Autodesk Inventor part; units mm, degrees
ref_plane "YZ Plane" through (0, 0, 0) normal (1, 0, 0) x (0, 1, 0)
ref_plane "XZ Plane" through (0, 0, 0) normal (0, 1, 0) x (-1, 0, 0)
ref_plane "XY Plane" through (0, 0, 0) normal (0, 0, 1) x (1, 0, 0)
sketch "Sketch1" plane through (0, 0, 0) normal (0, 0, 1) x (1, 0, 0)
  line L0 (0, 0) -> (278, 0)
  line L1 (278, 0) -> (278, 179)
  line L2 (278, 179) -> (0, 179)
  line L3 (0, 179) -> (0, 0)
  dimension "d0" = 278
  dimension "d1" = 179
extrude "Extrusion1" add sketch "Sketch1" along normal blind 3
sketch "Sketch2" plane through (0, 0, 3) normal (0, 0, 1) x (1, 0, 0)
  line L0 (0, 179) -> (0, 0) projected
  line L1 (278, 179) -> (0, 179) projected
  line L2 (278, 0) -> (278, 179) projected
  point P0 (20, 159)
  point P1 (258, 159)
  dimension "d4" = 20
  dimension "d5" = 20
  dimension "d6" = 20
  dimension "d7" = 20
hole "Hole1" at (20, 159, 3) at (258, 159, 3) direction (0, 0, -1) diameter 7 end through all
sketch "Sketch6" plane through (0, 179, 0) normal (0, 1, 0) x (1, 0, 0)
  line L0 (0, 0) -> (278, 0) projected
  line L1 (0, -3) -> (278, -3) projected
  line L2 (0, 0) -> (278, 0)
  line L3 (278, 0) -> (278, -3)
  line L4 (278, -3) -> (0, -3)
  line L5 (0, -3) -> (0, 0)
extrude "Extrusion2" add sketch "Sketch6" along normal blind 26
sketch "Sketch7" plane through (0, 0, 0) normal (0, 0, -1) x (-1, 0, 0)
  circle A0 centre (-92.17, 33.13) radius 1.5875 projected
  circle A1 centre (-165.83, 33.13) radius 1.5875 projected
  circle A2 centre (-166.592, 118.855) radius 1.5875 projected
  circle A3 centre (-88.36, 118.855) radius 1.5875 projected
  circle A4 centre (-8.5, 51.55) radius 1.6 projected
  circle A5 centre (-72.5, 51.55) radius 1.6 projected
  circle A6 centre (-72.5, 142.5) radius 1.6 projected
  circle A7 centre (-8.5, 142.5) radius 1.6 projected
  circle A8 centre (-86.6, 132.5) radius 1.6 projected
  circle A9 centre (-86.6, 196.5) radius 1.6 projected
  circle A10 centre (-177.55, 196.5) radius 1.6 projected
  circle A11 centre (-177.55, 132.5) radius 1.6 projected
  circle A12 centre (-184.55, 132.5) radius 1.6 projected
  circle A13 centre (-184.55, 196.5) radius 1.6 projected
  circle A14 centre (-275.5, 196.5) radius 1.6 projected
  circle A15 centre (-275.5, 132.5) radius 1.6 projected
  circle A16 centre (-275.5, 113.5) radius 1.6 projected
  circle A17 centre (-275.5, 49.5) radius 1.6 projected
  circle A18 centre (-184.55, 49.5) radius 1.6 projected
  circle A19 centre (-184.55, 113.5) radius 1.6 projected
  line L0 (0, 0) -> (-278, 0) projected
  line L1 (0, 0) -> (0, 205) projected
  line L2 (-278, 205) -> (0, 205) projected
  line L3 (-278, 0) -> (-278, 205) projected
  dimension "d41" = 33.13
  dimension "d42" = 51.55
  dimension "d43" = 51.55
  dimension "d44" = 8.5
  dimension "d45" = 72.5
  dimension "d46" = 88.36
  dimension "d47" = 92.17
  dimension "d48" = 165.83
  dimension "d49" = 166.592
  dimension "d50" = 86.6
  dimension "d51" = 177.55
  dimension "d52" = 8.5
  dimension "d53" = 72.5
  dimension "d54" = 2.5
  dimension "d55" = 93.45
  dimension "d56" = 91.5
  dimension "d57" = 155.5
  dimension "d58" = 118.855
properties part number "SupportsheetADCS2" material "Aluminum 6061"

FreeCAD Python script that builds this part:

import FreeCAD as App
import Part
import Sketcher

V = App.Vector
Q = App.Units.Quantity


def add_polygon(sketch, points):
    """Adds a closed chain of lines whose ends are joined by coincident constraints."""
    first, n = sketch.GeometryCount, len(points)
    for a, b in zip(points, points[1:] + points[:1]):
        sketch.addGeometry(Part.LineSegment(App.Vector(*a, 0), App.Vector(*b, 0)), False)
    for i in range(n):
        sketch.addConstraint(Sketcher.Constraint("Coincident", first + i, 2, first + (i + 1) % n, 1))

doc = App.newDocument("Part")
body = doc.addObject("PartDesign::Body", "Body")

# Sketch on XY plane
sketch1 = doc.addObject("Sketcher::SketchObject", "Sketch")
body.addObject(sketch1)
sketch1.AttachmentSupport = (doc.XY_Plane, [""])
sketch1.MapMode = "FlatFace"
add_polygon(sketch1, [(0, 179), (0, 0), (278, 0), (278, 179)])  # lines 0-3
sketch1.addConstraint([
    Sketcher.Constraint("Vertical", 0),
    Sketcher.Constraint("Horizontal", 1),
    Sketcher.Constraint("Vertical", 2),
    Sketcher.Constraint("Horizontal", 3),
    Sketcher.Constraint("Coincident", 0, 2, -1, 1),
    Sketcher.Constraint("DistanceX", 1, 1, 1, 2, Q("278 mm")),
    Sketcher.Constraint("DistanceY", 0, 2, 0, 1, Q("179 mm")),
])
pad1 = doc.addObject("PartDesign::Pad", "Pad")
body.addObject(pad1)
pad1.Profile = sketch1
pad1.Length = 3

# Sketch on XY plane
sketch2 = doc.addObject("Sketcher::SketchObject", "Sketch001")
body.addObject(sketch2)
sketch2.AttachmentSupport = (doc.XY_Plane, [""])
sketch2.MapMode = "FlatFace"
sketch2.AttachmentOffset = App.Placement(V(0, 0, 3), App.Rotation())
sketch2.addGeometry([
    Part.Circle(V(20, 159, 0), V(0, 0, 1), 3.5),
    Part.Circle(V(258, 159, 0), V(0, 0, 1), 3.5),
], False)
sketch2.addConstraint([
    Sketcher.Constraint("Equal", 0, 1),
    Sketcher.Constraint("Horizontal", 0, 3, 1, 3),
    Sketcher.Constraint("Diameter", 0, Q("7 mm")),
    Sketcher.Constraint("DistanceX", -1, 1, 0, 3, Q("20 mm")),
    Sketcher.Constraint("DistanceY", -1, 1, 0, 3, Q("159 mm")),
    Sketcher.Constraint("DistanceX", -1, 1, 1, 3, Q("258 mm")),
])
doc.recompute()
hole = doc.addObject("PartDesign::Hole", "Hole")
body.addObject(hole)
hole.Profile = sketch2
hole.ThreadType = "None"
hole.Diameter = 7
hole.DepthType = "ThroughAll"

# Sketch on XZ plane
sketch3 = doc.addObject("Sketcher::SketchObject", "Sketch002")
body.addObject(sketch3)
sketch3.AttachmentSupport = (doc.XZ_Plane, [""])
sketch3.MapMode = "FlatFace"
sketch3.AttachmentOffset = App.Placement(V(0, 0, -179), App.Rotation())
add_polygon(sketch3, [(278, 0), (0, 0), (0, 3), (278, 3)])  # lines 0-3
sketch3.addConstraint([
    Sketcher.Constraint("Horizontal", 0),
    Sketcher.Constraint("Vertical", 1),
    Sketcher.Constraint("Horizontal", 2),
    Sketcher.Constraint("Vertical", 3),
    Sketcher.Constraint("Coincident", 0, 2, -1, 1),
    Sketcher.Constraint("DistanceX", 0, 2, 0, 1, Q("278 mm")),
    Sketcher.Constraint("DistanceY", 1, 1, 1, 2, Q("3 mm")),
])
pad2 = doc.addObject("PartDesign::Pad", "Pad001")
body.addObject(pad2)
pad2.Profile = sketch3
pad2.Length = 26
pad2.Reversed = True

doc.recompute()
